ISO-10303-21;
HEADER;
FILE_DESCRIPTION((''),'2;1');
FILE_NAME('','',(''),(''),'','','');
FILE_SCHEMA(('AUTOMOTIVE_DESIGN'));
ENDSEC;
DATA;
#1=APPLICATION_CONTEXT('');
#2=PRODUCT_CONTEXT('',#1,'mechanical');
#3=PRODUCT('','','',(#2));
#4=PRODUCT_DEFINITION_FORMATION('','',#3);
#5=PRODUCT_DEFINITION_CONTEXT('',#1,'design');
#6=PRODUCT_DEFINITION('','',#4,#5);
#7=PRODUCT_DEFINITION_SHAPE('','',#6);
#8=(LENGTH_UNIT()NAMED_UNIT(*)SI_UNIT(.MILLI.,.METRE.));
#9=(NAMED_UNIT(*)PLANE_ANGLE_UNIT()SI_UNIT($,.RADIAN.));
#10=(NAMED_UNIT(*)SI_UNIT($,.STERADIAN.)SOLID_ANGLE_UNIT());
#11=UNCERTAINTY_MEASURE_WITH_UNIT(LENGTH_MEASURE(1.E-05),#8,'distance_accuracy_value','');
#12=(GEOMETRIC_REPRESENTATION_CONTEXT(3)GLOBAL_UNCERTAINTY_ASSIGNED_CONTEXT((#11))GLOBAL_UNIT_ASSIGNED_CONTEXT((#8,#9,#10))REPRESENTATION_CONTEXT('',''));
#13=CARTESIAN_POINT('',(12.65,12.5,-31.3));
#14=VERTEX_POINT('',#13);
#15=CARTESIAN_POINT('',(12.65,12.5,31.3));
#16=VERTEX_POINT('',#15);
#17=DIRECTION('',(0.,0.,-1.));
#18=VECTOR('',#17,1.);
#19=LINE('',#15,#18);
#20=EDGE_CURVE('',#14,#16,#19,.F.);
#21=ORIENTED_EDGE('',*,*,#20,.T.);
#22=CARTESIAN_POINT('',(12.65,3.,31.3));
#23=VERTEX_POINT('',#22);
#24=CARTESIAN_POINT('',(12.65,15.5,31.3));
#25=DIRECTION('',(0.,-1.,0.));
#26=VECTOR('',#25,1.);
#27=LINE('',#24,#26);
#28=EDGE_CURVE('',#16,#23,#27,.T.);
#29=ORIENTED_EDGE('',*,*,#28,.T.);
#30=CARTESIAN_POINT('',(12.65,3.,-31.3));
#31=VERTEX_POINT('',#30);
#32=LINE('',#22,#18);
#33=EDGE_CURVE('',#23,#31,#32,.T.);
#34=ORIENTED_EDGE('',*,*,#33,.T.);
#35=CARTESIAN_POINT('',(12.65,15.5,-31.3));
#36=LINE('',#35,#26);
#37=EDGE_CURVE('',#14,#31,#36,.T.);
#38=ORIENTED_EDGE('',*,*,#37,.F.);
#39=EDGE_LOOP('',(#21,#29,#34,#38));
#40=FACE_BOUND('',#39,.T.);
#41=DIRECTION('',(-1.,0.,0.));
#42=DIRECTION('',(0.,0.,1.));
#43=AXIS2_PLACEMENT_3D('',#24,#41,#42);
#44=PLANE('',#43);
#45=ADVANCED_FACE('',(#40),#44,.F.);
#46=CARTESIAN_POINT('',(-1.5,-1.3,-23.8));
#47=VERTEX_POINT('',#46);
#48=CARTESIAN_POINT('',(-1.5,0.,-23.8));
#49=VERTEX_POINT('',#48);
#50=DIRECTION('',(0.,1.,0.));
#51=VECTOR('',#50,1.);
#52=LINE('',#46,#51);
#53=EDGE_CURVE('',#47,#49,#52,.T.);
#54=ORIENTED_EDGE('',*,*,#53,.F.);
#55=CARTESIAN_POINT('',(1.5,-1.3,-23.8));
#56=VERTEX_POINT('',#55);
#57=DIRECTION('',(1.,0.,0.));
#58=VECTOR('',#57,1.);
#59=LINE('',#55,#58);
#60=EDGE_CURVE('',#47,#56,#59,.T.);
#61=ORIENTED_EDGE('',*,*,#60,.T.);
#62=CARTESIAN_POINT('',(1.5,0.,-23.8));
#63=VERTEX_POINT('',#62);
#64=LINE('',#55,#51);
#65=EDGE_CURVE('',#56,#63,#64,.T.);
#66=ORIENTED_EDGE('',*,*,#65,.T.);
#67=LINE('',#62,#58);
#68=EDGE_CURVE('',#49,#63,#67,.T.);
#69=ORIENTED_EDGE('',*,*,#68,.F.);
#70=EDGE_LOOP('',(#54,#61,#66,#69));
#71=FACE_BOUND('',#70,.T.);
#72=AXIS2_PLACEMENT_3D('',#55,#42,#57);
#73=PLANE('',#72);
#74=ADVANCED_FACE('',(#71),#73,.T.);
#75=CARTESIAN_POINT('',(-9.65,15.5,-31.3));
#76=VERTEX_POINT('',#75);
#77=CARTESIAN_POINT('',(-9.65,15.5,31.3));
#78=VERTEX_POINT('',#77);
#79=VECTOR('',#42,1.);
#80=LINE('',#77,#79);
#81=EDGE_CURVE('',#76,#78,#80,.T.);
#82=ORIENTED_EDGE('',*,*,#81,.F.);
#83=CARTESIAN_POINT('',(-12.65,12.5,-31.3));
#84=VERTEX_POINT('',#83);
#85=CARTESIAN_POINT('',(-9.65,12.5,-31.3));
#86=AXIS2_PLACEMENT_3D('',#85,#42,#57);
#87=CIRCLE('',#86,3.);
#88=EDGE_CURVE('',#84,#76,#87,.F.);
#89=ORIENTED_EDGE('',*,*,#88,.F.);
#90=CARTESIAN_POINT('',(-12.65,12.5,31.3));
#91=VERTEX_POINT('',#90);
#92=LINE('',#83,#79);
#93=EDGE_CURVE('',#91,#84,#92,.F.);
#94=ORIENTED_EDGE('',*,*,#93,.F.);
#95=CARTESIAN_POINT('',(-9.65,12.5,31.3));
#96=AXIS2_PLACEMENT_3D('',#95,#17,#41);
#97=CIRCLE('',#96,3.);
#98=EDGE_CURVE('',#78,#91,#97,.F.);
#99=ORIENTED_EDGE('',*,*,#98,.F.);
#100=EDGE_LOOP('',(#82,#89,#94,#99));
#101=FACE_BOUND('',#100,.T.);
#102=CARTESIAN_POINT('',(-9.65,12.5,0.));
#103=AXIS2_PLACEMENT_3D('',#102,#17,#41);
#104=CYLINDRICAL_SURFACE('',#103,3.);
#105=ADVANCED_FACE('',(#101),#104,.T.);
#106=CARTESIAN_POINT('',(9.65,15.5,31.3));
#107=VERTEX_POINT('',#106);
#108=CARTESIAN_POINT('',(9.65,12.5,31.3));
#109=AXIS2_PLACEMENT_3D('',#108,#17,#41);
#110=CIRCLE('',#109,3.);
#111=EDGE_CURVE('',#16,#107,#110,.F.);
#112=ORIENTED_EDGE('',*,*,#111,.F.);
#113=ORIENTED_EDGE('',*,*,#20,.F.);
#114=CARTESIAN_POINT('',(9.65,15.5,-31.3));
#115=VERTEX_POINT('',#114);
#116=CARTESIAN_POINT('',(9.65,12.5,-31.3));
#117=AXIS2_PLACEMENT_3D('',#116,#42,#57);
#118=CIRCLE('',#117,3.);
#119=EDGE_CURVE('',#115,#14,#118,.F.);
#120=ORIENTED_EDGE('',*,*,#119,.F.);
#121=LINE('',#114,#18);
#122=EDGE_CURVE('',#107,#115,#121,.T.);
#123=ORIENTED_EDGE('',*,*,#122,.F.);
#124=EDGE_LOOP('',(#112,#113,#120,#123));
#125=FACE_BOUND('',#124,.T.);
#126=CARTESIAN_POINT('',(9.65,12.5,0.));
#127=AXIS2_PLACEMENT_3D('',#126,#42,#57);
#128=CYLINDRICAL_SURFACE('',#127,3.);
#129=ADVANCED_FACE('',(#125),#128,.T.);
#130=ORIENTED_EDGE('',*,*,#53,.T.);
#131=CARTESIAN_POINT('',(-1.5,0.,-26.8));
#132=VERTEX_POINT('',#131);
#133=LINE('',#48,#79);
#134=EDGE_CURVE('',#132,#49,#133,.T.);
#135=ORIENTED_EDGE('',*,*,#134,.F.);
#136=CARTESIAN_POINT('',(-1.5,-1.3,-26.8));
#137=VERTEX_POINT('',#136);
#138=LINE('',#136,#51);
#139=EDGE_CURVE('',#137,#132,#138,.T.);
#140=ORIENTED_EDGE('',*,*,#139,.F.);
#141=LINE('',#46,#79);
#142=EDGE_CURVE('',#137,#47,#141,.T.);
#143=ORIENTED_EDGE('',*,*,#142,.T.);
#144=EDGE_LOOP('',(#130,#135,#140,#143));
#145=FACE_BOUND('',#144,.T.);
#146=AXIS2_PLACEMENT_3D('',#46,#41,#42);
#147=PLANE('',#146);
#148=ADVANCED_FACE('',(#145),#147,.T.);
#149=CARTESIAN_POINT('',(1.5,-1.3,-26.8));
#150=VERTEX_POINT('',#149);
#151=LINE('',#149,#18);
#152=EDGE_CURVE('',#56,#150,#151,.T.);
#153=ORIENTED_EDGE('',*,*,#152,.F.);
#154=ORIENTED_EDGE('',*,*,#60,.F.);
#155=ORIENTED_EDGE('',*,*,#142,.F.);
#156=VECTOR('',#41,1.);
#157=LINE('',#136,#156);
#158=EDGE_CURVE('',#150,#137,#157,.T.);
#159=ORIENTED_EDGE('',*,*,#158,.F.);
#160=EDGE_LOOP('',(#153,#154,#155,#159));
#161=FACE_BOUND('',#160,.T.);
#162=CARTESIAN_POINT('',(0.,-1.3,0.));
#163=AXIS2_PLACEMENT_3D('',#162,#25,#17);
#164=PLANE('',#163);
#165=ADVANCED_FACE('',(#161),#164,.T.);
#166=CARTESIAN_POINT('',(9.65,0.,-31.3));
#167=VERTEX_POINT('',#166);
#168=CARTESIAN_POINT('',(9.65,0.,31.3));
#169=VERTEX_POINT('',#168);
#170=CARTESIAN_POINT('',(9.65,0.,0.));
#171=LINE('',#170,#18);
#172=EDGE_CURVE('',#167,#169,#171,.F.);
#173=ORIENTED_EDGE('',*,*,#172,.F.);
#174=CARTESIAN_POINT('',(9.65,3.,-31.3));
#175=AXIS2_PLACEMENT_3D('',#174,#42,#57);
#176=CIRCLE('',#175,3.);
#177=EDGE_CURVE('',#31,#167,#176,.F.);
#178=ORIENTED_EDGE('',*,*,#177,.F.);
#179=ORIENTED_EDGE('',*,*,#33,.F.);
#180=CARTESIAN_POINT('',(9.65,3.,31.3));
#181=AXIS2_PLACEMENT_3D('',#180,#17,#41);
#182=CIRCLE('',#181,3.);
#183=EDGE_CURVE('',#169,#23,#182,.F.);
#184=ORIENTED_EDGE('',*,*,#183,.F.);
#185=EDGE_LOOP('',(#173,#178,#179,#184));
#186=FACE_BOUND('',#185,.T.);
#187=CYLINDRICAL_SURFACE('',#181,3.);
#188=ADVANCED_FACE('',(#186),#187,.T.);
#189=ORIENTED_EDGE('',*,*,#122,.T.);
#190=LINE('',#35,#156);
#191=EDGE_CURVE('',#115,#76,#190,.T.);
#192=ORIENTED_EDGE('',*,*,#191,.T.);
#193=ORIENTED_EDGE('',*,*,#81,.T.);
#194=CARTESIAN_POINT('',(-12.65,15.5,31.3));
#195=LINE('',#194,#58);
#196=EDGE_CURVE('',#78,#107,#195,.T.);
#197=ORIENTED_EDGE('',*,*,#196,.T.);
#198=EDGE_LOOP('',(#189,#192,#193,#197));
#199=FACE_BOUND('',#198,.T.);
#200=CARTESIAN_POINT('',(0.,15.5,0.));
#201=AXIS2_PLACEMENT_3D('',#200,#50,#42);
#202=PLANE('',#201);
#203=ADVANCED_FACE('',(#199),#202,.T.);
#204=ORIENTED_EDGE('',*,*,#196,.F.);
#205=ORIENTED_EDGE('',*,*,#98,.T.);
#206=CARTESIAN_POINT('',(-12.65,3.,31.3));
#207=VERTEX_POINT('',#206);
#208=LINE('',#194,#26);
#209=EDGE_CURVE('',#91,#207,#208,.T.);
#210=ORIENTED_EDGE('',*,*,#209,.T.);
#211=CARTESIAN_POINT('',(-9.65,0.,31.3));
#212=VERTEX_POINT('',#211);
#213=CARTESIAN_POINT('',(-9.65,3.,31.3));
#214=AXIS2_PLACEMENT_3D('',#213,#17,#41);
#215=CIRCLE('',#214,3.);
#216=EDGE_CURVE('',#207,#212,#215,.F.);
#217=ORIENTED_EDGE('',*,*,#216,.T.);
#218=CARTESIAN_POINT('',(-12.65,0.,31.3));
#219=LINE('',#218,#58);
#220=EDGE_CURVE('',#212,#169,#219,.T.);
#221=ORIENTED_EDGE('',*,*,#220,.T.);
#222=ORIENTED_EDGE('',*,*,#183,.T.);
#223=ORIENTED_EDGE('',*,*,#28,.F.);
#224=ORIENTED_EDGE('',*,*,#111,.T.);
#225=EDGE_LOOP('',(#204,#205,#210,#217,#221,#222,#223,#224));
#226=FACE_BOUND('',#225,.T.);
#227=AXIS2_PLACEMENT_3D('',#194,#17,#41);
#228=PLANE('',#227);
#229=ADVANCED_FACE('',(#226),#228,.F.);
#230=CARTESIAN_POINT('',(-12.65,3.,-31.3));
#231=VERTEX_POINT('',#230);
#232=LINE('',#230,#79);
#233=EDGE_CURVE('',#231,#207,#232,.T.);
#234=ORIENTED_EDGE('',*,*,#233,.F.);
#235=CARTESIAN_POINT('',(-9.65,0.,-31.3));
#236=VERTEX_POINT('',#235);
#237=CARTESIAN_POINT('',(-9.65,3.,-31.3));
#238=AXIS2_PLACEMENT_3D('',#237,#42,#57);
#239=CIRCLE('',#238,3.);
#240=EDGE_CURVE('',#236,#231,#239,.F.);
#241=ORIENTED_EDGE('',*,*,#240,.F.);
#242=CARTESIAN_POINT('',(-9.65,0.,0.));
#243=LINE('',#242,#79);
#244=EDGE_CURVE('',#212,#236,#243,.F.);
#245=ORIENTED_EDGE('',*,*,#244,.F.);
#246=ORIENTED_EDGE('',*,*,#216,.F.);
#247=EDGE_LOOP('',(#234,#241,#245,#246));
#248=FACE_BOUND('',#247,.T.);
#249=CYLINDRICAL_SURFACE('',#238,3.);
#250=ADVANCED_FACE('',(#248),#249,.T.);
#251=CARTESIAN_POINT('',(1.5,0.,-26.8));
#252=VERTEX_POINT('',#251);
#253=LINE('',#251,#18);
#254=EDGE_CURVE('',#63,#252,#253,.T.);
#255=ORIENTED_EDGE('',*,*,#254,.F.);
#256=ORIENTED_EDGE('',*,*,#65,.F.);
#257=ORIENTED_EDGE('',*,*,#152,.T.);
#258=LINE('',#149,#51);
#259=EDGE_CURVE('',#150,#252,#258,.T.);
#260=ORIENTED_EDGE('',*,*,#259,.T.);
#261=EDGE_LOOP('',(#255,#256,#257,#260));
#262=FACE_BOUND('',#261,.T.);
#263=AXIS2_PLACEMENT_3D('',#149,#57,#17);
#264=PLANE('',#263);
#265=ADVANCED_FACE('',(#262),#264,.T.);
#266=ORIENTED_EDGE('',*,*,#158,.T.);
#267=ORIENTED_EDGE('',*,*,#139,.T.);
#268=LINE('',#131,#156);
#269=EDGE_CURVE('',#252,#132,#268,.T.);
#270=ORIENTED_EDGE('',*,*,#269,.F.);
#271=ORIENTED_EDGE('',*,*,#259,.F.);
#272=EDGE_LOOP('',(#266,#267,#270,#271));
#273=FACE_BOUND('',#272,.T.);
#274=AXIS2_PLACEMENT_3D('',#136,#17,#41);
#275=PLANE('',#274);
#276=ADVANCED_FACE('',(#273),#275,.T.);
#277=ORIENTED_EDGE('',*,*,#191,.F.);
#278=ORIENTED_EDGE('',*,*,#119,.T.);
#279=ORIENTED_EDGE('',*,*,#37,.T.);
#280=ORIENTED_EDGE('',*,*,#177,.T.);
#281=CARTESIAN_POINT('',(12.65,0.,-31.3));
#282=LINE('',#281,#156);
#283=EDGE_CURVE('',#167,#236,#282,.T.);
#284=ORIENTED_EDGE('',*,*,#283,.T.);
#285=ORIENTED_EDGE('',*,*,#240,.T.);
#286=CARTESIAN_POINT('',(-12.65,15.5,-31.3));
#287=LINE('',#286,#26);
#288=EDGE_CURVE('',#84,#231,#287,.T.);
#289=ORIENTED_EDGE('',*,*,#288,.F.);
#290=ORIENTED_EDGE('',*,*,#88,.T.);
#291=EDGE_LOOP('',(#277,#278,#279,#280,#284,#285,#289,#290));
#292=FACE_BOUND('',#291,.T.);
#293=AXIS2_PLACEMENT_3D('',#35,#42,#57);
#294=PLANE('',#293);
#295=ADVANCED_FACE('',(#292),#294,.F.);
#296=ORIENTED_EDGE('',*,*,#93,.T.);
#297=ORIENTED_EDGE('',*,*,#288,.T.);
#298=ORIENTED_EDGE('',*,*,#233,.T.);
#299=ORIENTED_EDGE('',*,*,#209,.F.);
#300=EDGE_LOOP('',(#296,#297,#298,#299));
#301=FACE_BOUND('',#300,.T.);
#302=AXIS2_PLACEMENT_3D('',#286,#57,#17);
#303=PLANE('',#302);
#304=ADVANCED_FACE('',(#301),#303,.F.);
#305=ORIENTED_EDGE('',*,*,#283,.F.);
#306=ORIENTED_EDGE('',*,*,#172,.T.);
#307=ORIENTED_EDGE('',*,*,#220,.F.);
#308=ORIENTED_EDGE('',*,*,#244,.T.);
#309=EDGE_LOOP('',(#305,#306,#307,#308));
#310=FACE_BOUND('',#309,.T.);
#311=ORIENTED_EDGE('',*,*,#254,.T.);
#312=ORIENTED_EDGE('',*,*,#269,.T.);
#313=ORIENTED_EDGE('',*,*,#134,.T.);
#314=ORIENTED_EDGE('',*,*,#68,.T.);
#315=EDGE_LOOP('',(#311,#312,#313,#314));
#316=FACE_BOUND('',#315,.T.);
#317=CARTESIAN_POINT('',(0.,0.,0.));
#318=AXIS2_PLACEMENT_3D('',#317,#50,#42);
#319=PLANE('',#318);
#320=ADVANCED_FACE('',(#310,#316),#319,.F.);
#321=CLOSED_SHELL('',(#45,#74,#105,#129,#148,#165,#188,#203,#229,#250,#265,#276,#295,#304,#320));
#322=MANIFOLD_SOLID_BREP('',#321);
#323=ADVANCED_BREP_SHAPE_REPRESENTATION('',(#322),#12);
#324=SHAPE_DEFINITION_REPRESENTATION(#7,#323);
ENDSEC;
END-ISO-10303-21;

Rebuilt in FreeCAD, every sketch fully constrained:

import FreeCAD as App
import Part
import Sketcher
from FreeCAD import Vector


def edges_at(feature, points):
    """Names of the edges that pass closest to the given points."""
    edges = feature.Shape.Edges
    near = lambda p: min(range(len(edges)), key=lambda i: edges[i].distToShape(Part.Vertex(*p))[0])
    return sorted({f"Edge{near(p) + 1}" for p in points})

doc = App.newDocument("Part")
body = doc.addObject("PartDesign::Body", "Body")

sketch1 = doc.addObject("Sketcher::SketchObject", "Sketch")
body.addObject(sketch1)
sketch1.AttachmentSupport = (doc.XZ_Plane, [""])
sketch1.MapMode = "FlatFace"
sketch1.addGeometry([
    Part.LineSegment(Vector(-13, -31, 0), Vector(-13, 31, 0)),
    Part.LineSegment(Vector(-13, 31, 0), Vector(13, 31, 0)),
    Part.LineSegment(Vector(13, 31, 0), Vector(13, -31, 0)),
    Part.LineSegment(Vector(13, -31, 0), Vector(-13, -31, 0)),
], False)
sketch1.addConstraint([
    Sketcher.Constraint("Coincident", 0, 2, 1, 1),
    Sketcher.Constraint("Coincident", 1, 2, 2, 1),
    Sketcher.Constraint("Coincident", 2, 2, 3, 1),
    Sketcher.Constraint("Coincident", 3, 2, 0, 1),
    Sketcher.Constraint("Vertical", 0),
    Sketcher.Constraint("Horizontal", 1),
    Sketcher.Constraint("Vertical", 2),
    Sketcher.Constraint("Horizontal", 3),
    Sketcher.Constraint("Symmetric", 0, 2, 2, 2, -1, 1),
    Sketcher.Constraint("DistanceX", 1, 1, 1, 2, 25.3),
    Sketcher.Constraint("DistanceY", 0, 1, 0, 2, 62.6),
])
pad1 = doc.addObject("PartDesign::Pad", "Pad")
body.addObject(pad1)
pad1.Profile = sketch1
pad1.Length = 15.5
pad1.Reversed = True
doc.recompute()

fillet = doc.addObject("PartDesign::Fillet", "Fillet")
body.addObject(fillet)
fillet.Base = (pad1, edges_at(pad1, [
    (12.65, 15.5, 0),
    (-12.65, 15.5, 0),
    (12.65, 0, 0),
    (-12.65, 0, 0),
]))
fillet.Radius = 3

sketch2 = doc.addObject("Sketcher::SketchObject", "Sketch001")
body.addObject(sketch2)
sketch2.AttachmentSupport = (doc.XZ_Plane, [""])
sketch2.MapMode = "FlatFace"
sketch2.addGeometry([
    Part.LineSegment(Vector(-1.5, -26.8, 0), Vector(-1.5, -23.8, 0)),
    Part.LineSegment(Vector(-1.5, -23.8, 0), Vector(1.5, -23.8, 0)),
    Part.LineSegment(Vector(1.5, -23.8, 0), Vector(1.5, -26.8, 0)),
    Part.LineSegment(Vector(1.5, -26.8, 0), Vector(-1.5, -26.8, 0)),
], False)
sketch2.addConstraint([
    Sketcher.Constraint("Coincident", 0, 2, 1, 1),
    Sketcher.Constraint("Coincident", 1, 2, 2, 1),
    Sketcher.Constraint("Coincident", 2, 2, 3, 1),
    Sketcher.Constraint("Coincident", 3, 2, 0, 1),
    Sketcher.Constraint("Vertical", 0),
    Sketcher.Constraint("Horizontal", 1),
    Sketcher.Constraint("Vertical", 2),
    Sketcher.Constraint("Horizontal", 3),
    Sketcher.Constraint("Equal", 3, 0),
    Sketcher.Constraint("DistanceX", 1, 1, 1, 2, 3.0),
    Sketcher.Constraint("DistanceX", 0, 2, -1, 1, 1.5),
    Sketcher.Constraint("DistanceY", 0, 2, -1, 1, 23.8),
])
pad2 = doc.addObject("PartDesign::Pad", "Pad001")
body.addObject(pad2)
pad2.Profile = sketch2
pad2.Length = 1.3

doc.recompute()
